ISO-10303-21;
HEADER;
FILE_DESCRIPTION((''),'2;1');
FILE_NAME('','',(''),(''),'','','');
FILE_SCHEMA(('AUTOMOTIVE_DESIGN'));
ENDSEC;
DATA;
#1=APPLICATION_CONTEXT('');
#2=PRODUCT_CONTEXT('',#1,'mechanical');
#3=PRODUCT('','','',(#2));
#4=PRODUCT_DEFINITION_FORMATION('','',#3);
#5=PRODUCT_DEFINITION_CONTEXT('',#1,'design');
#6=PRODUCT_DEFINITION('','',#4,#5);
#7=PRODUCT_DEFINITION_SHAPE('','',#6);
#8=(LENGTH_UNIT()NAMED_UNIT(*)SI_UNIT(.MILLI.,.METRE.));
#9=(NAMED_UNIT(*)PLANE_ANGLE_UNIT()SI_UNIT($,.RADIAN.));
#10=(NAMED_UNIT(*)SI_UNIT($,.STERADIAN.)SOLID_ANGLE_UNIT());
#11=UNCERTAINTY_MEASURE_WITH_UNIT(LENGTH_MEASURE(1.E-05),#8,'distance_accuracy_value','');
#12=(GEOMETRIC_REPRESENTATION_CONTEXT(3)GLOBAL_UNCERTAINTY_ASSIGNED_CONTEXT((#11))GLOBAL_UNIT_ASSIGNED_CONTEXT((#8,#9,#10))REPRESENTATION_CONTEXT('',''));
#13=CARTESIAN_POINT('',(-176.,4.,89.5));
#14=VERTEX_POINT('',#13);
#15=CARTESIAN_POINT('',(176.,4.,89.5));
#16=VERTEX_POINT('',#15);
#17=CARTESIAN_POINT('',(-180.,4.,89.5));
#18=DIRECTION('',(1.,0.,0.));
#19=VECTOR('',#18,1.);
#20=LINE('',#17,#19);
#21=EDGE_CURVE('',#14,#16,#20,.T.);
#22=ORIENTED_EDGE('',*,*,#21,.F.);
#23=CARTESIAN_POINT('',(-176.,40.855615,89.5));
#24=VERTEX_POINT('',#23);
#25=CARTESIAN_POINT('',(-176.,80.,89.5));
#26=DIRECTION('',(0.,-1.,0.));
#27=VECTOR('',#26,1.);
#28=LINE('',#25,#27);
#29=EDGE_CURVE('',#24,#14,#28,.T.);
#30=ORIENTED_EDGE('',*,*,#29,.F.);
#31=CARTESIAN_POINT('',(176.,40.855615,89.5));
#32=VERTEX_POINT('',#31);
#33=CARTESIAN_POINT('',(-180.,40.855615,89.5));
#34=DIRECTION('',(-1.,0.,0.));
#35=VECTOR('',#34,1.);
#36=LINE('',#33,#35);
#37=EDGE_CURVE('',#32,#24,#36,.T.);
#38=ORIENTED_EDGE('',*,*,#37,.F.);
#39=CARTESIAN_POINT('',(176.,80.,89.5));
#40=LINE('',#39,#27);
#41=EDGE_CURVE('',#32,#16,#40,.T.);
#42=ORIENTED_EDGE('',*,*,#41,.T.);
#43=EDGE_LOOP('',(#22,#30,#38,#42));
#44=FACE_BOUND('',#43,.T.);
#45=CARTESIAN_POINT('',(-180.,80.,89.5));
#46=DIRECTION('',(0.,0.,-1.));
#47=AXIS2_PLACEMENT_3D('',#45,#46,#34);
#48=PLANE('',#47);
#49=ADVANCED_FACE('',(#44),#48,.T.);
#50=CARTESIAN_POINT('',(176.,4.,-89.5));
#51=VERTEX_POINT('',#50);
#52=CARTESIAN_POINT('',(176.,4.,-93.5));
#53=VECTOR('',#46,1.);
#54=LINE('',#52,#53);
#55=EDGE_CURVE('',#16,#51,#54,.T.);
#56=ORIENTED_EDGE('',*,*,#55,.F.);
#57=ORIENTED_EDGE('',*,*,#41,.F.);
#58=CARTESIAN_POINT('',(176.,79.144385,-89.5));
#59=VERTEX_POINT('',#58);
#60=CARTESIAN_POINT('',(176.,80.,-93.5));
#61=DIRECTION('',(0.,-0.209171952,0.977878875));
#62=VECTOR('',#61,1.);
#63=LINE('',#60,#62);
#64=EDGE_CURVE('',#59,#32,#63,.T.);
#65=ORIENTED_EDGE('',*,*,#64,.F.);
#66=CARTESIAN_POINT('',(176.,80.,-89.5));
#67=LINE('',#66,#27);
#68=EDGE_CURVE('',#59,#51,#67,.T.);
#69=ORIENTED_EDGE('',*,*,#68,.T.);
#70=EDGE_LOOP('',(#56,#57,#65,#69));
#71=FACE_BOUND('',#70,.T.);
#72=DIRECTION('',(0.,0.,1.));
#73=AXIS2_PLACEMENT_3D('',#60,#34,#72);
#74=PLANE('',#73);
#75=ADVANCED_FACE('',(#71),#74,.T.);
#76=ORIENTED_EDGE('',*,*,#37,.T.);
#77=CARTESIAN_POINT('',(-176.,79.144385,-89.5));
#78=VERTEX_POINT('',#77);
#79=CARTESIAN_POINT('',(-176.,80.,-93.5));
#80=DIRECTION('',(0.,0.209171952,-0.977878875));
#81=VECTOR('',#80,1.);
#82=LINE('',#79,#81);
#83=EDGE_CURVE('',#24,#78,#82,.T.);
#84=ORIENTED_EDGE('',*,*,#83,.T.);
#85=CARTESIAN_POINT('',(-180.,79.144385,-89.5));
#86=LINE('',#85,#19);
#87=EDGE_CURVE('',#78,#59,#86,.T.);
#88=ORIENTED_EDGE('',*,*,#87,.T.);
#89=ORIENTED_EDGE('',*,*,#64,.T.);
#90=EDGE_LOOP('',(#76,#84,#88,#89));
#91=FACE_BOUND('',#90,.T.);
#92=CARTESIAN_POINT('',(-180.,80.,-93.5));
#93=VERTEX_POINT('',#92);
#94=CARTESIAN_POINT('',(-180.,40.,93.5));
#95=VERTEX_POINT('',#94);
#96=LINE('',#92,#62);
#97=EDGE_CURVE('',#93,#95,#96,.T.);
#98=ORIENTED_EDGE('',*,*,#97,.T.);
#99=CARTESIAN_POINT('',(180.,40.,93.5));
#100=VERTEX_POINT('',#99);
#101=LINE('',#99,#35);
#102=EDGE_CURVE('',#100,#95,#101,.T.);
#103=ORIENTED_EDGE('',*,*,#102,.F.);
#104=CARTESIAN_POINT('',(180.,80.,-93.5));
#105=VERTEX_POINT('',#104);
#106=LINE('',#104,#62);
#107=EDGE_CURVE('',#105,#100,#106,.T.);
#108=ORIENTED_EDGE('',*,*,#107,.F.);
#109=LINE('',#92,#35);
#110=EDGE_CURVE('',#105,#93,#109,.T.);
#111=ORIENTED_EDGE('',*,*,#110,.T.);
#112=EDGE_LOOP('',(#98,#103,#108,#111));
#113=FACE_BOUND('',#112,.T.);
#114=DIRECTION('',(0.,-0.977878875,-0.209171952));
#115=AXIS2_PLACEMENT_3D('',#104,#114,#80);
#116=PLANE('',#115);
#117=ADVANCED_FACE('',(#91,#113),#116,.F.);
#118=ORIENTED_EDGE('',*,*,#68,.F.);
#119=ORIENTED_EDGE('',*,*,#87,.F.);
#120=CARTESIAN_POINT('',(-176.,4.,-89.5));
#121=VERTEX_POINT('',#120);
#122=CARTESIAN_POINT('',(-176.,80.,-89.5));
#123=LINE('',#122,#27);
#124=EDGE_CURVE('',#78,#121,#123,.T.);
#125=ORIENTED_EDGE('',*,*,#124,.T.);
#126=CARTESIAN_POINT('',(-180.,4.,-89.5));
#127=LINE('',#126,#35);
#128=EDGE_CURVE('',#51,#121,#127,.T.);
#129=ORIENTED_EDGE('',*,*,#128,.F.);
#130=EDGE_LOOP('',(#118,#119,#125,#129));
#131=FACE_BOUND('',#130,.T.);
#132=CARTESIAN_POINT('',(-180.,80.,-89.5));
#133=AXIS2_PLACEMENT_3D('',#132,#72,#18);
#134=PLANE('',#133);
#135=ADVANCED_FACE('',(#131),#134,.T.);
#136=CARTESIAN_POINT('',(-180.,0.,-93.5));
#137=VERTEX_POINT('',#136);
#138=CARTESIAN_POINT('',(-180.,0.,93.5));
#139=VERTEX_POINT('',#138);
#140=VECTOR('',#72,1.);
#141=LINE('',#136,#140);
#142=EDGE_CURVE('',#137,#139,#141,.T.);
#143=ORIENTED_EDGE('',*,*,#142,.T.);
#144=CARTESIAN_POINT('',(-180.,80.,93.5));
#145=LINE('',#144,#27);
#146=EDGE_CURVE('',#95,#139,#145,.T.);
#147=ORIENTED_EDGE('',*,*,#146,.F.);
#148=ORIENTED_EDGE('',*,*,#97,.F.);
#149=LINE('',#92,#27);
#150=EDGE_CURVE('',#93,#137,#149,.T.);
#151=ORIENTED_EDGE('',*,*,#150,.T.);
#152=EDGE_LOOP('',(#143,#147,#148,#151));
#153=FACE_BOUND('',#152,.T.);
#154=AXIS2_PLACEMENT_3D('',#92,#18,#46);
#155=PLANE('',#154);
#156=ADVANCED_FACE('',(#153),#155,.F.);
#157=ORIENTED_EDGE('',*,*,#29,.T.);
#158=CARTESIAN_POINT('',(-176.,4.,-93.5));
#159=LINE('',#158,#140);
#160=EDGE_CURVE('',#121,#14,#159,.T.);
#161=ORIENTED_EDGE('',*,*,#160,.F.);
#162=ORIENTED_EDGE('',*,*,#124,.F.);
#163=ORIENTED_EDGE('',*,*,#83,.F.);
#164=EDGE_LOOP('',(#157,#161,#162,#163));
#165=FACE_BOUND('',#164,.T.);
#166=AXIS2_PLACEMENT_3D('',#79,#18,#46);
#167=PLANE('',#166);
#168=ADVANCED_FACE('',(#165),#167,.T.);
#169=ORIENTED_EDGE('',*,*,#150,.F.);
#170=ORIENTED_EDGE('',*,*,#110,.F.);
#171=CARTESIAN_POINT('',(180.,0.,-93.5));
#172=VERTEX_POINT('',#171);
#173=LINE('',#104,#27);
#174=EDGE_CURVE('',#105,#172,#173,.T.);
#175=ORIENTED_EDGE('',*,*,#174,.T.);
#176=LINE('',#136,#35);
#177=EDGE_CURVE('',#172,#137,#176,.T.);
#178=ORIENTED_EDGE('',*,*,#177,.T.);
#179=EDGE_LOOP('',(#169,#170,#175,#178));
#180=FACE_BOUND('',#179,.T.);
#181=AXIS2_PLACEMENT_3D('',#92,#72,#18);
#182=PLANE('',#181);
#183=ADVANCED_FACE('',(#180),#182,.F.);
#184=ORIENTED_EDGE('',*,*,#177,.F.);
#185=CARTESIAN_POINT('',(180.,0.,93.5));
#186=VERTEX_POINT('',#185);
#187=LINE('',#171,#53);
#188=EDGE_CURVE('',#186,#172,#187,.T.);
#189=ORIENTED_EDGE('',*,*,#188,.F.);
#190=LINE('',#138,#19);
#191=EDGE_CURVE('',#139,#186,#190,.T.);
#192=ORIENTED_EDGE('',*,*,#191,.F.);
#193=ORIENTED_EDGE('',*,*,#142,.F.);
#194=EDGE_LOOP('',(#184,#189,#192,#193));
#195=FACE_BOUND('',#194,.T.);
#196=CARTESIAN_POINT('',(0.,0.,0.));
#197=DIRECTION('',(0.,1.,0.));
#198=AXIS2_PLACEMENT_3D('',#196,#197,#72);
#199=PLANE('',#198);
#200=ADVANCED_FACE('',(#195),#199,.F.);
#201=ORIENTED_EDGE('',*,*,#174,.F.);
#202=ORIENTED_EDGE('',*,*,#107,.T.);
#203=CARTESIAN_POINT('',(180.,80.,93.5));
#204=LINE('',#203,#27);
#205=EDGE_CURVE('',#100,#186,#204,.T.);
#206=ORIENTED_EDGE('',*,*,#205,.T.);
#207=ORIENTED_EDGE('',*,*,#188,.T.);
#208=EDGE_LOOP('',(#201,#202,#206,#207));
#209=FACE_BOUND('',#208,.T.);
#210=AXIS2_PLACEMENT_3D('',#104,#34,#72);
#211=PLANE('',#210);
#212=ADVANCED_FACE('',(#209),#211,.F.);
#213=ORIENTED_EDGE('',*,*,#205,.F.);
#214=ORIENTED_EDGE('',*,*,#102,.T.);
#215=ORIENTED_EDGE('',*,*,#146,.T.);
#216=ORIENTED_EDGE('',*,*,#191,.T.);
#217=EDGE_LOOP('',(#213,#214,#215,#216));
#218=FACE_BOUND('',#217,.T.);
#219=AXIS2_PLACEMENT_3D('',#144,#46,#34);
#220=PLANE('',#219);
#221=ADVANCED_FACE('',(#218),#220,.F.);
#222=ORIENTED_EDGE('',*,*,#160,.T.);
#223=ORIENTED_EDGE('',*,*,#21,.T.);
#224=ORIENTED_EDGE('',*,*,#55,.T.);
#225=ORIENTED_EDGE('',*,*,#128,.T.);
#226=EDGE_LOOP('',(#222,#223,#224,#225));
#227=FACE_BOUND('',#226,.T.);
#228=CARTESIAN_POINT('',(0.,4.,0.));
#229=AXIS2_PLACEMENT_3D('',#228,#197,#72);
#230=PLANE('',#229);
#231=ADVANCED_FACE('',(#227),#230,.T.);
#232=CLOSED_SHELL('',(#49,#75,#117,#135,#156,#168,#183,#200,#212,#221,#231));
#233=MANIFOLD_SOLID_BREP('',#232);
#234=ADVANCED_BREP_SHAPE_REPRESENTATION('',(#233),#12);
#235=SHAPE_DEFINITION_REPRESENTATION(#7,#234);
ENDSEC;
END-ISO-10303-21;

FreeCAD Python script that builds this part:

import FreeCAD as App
import Part
import Sketcher

V = App.Vector


def faces_at(feature, points):
    """Names of the faces that lie closest to the given points."""
    faces = feature.Shape.Faces
    near = lambda p: min(range(len(faces)), key=lambda i: faces[i].distToShape(Part.Vertex(*p))[0])
    return sorted({f"Face{near(p) + 1}" for p in points})


def add_polygon(sketch, points):
    """Adds a closed chain of lines whose ends are joined by coincident constraints."""
    first, n = sketch.GeometryCount, len(points)
    for a, b in zip(points, points[1:] + points[:1]):
        sketch.addGeometry(Part.LineSegment(App.Vector(*a, 0), App.Vector(*b, 0)), False)
    for i in range(n):
        sketch.addConstraint(Sketcher.Constraint("Coincident", first + i, 2, first + (i + 1) % n, 1))

doc = App.newDocument("Part")
params = doc.addObject("Spreadsheet::Sheet", "Params")
for row, (alias, value) in enumerate([
    ("sketch1_width", "360 mm"),
    ("sketch1_height", "187 mm"),
    ("pad1_length", "80 mm"),
    ("thickness_wall", "4 mm"),
    ("sketch2_width", "40 mm"),
    ("sketch2_height", "187 mm"),
], start=1):
    params.set(f"A{row}", alias)
    params.set(f"B{row}", "=" + value)
    params.setAlias(f"B{row}", alias)

body = doc.addObject("PartDesign::Body", "Body")

# Sketch on XZ plane
sketch1 = doc.addObject("Sketcher::SketchObject", "Sketch")
body.addObject(sketch1)
sketch1.AttachmentSupport = (doc.XZ_Plane, [""])
sketch1.MapMode = "FlatFace"
add_polygon(sketch1, [(-180, -94), (-180, 94), (180, 94), (180, -94)])  # lines 0-3
sketch1.addConstraint([
    Sketcher.Constraint("Vertical", 0),
    Sketcher.Constraint("Horizontal", 1),
    Sketcher.Constraint("Vertical", 2),
    Sketcher.Constraint("Horizontal", 3),
    Sketcher.Constraint("Symmetric", 0, 2, 2, 2, -1, 1),
    Sketcher.Constraint("DistanceX", 1, 1, 1, 2, 360.0),
    Sketcher.Constraint("DistanceY", 0, 1, 0, 2, 187.0),
])
sketch1.setExpression("Constraints[9]", "Params.sketch1_width")
sketch1.setExpression("Constraints[10]", "Params.sketch1_height")
pad1 = doc.addObject("PartDesign::Pad", "Pad")
body.addObject(pad1)
pad1.Profile = sketch1
pad1.setExpression("Length", "Params.pad1_length")
pad1.Reversed = True
doc.recompute()

thickness = doc.addObject("PartDesign::Thickness", "Thickness")
body.addObject(thickness)
thickness.Base = (pad1, faces_at(pad1, [(0, 80, 0)]))
thickness.setExpression("Value", "Params.thickness_wall")
thickness.Reversed = True
thickness.Join = "Intersection"

# Sketch on YZ plane
sketch2 = doc.addObject("Sketcher::SketchObject", "Sketch001")
body.addObject(sketch2)
sketch2.AttachmentSupport = (doc.YZ_Plane, [""])
sketch2.MapMode = "FlatFace"
sketch2.AttachmentOffset = App.Placement(V(0, 0, -180), App.Rotation())
add_polygon(sketch2, [(80, -94), (40, 94), (80, 94)])  # lines 0-2
sketch2.addConstraint([
    Sketcher.Constraint("Horizontal", 1),
    Sketcher.Constraint("Vertical", 2),
    Sketcher.Constraint("DistanceX", 1, 1, 1, 2, 40.0),
    Sketcher.Constraint("DistanceY", 2, 2, 2, 1, 187.0),
    Sketcher.Constraint("DistanceX", -1, 1, 0, 2, 40.0),
    Sketcher.Constraint("DistanceY", -1, 1, 0, 2, 93.5),
])
sketch2.setExpression("Constraints[5]", "Params.sketch2_width")
sketch2.setExpression("Constraints[6]", "Params.sketch2_height")
pocket1 = doc.addObject("PartDesign::Pocket", "Pocket")
body.addObject(pocket1)
pocket1.Profile = sketch2
pocket1.Type = "ThroughAll"
pocket1.Reversed = True

doc.recompute()
